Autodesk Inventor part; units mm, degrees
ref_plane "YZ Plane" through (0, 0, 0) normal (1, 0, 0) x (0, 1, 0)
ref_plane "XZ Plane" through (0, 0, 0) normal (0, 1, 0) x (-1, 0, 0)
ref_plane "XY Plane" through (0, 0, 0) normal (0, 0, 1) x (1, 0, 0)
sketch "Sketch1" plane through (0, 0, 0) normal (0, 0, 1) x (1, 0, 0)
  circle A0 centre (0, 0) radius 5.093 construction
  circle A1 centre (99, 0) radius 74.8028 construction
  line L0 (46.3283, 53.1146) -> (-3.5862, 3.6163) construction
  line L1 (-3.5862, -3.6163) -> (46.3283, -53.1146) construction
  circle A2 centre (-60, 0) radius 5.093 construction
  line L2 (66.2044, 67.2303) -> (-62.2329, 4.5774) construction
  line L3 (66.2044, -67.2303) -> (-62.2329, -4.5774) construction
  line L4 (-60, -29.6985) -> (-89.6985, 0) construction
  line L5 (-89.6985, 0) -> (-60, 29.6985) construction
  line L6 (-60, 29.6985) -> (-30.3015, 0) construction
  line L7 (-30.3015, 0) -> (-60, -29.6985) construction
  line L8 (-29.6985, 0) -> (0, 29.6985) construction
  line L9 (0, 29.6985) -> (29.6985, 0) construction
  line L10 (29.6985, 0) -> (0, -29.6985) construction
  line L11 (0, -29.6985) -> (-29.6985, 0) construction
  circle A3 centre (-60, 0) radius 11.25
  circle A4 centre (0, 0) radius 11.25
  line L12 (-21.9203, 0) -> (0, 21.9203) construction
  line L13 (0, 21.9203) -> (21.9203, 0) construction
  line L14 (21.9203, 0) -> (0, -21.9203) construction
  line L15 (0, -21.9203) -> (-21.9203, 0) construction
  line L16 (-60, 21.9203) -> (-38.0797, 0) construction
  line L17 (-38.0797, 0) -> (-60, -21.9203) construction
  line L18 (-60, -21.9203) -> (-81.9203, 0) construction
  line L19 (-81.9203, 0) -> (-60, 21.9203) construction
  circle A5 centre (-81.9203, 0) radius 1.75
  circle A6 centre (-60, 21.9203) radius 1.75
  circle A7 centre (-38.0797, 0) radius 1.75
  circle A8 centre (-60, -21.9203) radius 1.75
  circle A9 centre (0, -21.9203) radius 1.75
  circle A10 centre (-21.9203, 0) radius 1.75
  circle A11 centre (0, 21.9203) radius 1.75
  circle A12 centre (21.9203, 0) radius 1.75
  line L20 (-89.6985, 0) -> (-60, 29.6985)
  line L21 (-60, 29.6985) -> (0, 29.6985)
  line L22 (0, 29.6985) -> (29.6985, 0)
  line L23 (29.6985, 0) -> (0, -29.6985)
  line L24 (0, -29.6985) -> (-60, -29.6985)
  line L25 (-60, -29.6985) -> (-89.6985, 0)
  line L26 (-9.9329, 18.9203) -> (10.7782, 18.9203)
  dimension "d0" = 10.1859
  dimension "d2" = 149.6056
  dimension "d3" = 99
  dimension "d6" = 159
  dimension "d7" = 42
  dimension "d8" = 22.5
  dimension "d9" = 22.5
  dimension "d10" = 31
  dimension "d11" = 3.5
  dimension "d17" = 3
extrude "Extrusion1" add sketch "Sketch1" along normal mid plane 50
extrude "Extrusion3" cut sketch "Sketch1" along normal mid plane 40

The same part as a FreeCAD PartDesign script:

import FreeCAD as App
import Part
import Sketcher

V = App.Vector
Q = App.Units.Quantity


def add_polygon(sketch, points):
    """Adds a closed chain of lines whose ends are joined by coincident constraints."""
    first, n = sketch.GeometryCount, len(points)
    for a, b in zip(points, points[1:] + points[:1]):
        sketch.addGeometry(Part.LineSegment(App.Vector(*a, 0), App.Vector(*b, 0)), False)
    for i in range(n):
        sketch.addConstraint(Sketcher.Constraint("Coincident", first + i, 2, first + (i + 1) % n, 1))

doc = App.newDocument("Part")
params = doc.addObject("Spreadsheet::Sheet", "Params")
for row, (alias, value) in enumerate([
    ("sketch1_diameter", "3.5 mm"),
    ("sketch1_diameter2", "22.5 mm"),
    ("sketch1_length", "42 mm"),
    ("sketch1_width", "60 mm"),
    ("pad1_length", "50 mm"),
    ("sketch2_diameter", "3.5 mm"),
    ("sketch2_diameter2", "22.5 mm"),
    ("sketch2_length", "42 mm"),
    ("sketch2_width", "60 mm"),
    ("pocket1_length", "40 mm"),
], start=1):
    params.set(f"A{row}", alias)
    params.set(f"B{row}", "=" + value)
    params.setAlias(f"B{row}", alias)

body = doc.addObject("PartDesign::Body", "Body")
body.AllowCompound = True

# Sketch on XY plane
sketch1 = doc.addObject("Sketcher::SketchObject", "Sketch")
body.addObject(sketch1)
sketch1.AttachmentSupport = (doc.XY_Plane, [""])
sketch1.MapMode = "FlatFace"
add_polygon(sketch1, [(-60, 29.7), (-89.7, 0), (-60, -29.7), (0, -29.7), (29.7, 0), (0, 29.7)])  # lines 0-5
sketch1.addGeometry(Part.Circle(V(-60, -21.9, 0), V(0, 0, 1), 1.8), False)  # 6
sketch1.addGeometry(Part.Circle(V(0, -21.9, 0), V(0, 0, 1), 1.8), False)  # 7
sketch1.addGeometry(Part.Circle(V(-81.9, 0, 0), V(0, 0, 1), 1.8), False)  # 8
sketch1.addGeometry(Part.Circle(V(-60, 0, 0), V(0, 0, 1), 11.2), False)  # 9
sketch1.addGeometry(Part.Circle(V(-38.1, 0, 0), V(0, 0, 1), 1.8), False)  # 10
sketch1.addGeometry(Part.Circle(V(-60, 21.9, 0), V(0, 0, 1), 1.8), False)  # 11
sketch1.addGeometry(Part.Circle(V(-21.9, 0, 0), V(0, 0, 1), 1.8), False)  # 12
sketch1.addGeometry(Part.Circle(V(0, 0, 0), V(0, 0, 1), 11.2), False)  # 13
sketch1.addGeometry(Part.Circle(V(21.9, 0, 0), V(0, 0, 1), 1.8), False)  # 14
sketch1.addGeometry(Part.Circle(V(0, 21.9, 0), V(0, 0, 1), 1.8), False)  # 15
sketch1.addConstraint(Sketcher.Constraint("Horizontal", 2))
sketch1.addConstraint(Sketcher.Constraint("Horizontal", 5))
sketch1.addConstraint(Sketcher.Constraint("Coincident", 13, 3, -1, 1))
sketch1.addConstraint(Sketcher.Constraint("Equal", 6, 7))
sketch1.addConstraint(Sketcher.Constraint("Equal", 7, 8))
sketch1.addConstraint(Sketcher.Constraint("Equal", 8, 10))
sketch1.addConstraint(Sketcher.Constraint("Equal", 10, 11))
sketch1.addConstraint(Sketcher.Constraint("Equal", 11, 12))
sketch1.addConstraint(Sketcher.Constraint("Equal", 9, 13))
sketch1.addConstraint(Sketcher.Constraint("Equal", 12, 14))
sketch1.addConstraint(Sketcher.Constraint("Equal", 14, 15))
sketch1.addConstraint(Sketcher.Constraint("Symmetric", 12, 3, 14, 3, -1, 1))
sketch1.addConstraint(Sketcher.Constraint("Symmetric", 7, 3, 15, 3, -1, 1))
sketch1.addConstraint(Sketcher.Constraint("Symmetric", 2, 2, 4, 2, -1, 1))
sketch1.addConstraint(Sketcher.Constraint("Symmetric", 6, 3, 11, 3, -1))
sketch1.addConstraint(Sketcher.Constraint("PointOnObject", 7, 3, -2))
sketch1.addConstraint(Sketcher.Constraint("PointOnObject", 8, 3, -1))
sketch1.addConstraint(Sketcher.Constraint("PointOnObject", 9, 3, -1))
sketch1.addConstraint(Sketcher.Constraint("PointOnObject", 10, 3, -1))
sketch1.addConstraint(Sketcher.Constraint("PointOnObject", 12, 3, -1))
sketch1.addConstraint(Sketcher.Constraint("PointOnObject", 0, 2, -1))
sketch1.addConstraint(Sketcher.Constraint("PointOnObject", 2, 2, -2))
sketch1.addConstraint(Sketcher.Constraint("PointOnObject", 3, 2, -1))
sketch1.addConstraint(Sketcher.Constraint("Perpendicular", 0, 1))
sketch1.addConstraint(Sketcher.Constraint("Perpendicular", 1, 3))
sketch1.addConstraint(Sketcher.Constraint("Perpendicular", 3, 4))
sketch1.addConstraint(Sketcher.Constraint("Horizontal", 6, 3, 7, 3))
sketch1.addConstraint(Sketcher.Constraint("Vertical", 6, 3, 9, 3))
sketch1.addConstraint(Sketcher.Constraint("Vertical", 11, 3, 1, 2))
sketch1.addConstraint(Sketcher.Constraint("Diameter", 6, Q("3.5 mm")))
sketch1.addConstraint(Sketcher.Constraint("Diameter", 9, Q("22.5 mm")))
sketch1.addConstraint(Sketcher.Constraint("Distance", 0, Q("42 mm")))
sketch1.addConstraint(Sketcher.Constraint("DistanceX", 2, 1, 2, 2, Q("60 mm")))
sketch1.addConstraint(Sketcher.Constraint("DistanceX", 10, 3, 14, 3, Q("60 mm")))
sketch1.addConstraint(Sketcher.Constraint("DistanceY", 6, 3, -1, 1, Q("21.9203 mm")))
sketch1.addConstraint(Sketcher.Constraint("DistanceX", 8, 3, -1, 1, Q("81.9203 mm")))
sketch1.addConstraint(Sketcher.Constraint("DistanceX", 10, 3, -1, 1, Q("38.0797 mm")))
sketch1.setExpression("Constraints[35]", "Params.sketch1_diameter")
sketch1.setExpression("Constraints[36]", "Params.sketch1_diameter2")
sketch1.setExpression("Constraints[37]", "Params.sketch1_length")
sketch1.setExpression("Constraints[38]", "Params.sketch1_width")
pad1 = doc.addObject("PartDesign::Pad", "Pad")
body.addObject(pad1)
pad1.Profile = sketch1
pad1.setExpression("Length", "Params.pad1_length")
pad1.Midplane = True

# Sketch on XY plane
sketch2 = doc.addObject("Sketcher::SketchObject", "Sketch001")
body.addObject(sketch2)
sketch2.AttachmentSupport = (doc.XY_Plane, [""])
sketch2.MapMode = "FlatFace"
add_polygon(sketch2, [(-60, 29.7), (-89.7, 0), (-60, -29.7), (0, -29.7), (29.7, 0), (0, 29.7)])  # lines 0-5
sketch2.addGeometry(Part.Circle(V(-60, -21.9, 0), V(0, 0, 1), 1.8), False)  # 6
sketch2.addGeometry(Part.Circle(V(0, -21.9, 0), V(0, 0, 1), 1.8), False)  # 7
sketch2.addGeometry(Part.Circle(V(-81.9, 0, 0), V(0, 0, 1), 1.8), False)  # 8
sketch2.addGeometry(Part.Circle(V(-60, 0, 0), V(0, 0, 1), 11.2), False)  # 9
sketch2.addGeometry(Part.Circle(V(-38.1, 0, 0), V(0, 0, 1), 1.8), False)  # 10
sketch2.addGeometry(Part.Circle(V(-60, 21.9, 0), V(0, 0, 1), 1.8), False)  # 11
sketch2.addGeometry(Part.Circle(V(-21.9, 0, 0), V(0, 0, 1), 1.8), False)  # 12
sketch2.addGeometry(Part.Circle(V(0, 0, 0), V(0, 0, 1), 11.2), False)  # 13
sketch2.addGeometry(Part.Circle(V(21.9, 0, 0), V(0, 0, 1), 1.8), False)  # 14
sketch2.addGeometry(Part.Circle(V(0, 21.9, 0), V(0, 0, 1), 1.8), False)  # 15
sketch2.addConstraint(Sketcher.Constraint("Horizontal", 2))
sketch2.addConstraint(Sketcher.Constraint("Horizontal", 5))
sketch2.addConstraint(Sketcher.Constraint("Coincident", 13, 3, -1, 1))
sketch2.addConstraint(Sketcher.Constraint("Equal", 6, 7))
sketch2.addConstraint(Sketcher.Constraint("Equal", 7, 8))
sketch2.addConstraint(Sketcher.Constraint("Equal", 8, 10))
sketch2.addConstraint(Sketcher.Constraint("Equal", 10, 11))
sketch2.addConstraint(Sketcher.Constraint("Equal", 11, 12))
sketch2.addConstraint(Sketcher.Constraint("Equal", 9, 13))
sketch2.addConstraint(Sketcher.Constraint("Equal", 12, 14))
sketch2.addConstraint(Sketcher.Constraint("Equal", 14, 15))
sketch2.addConstraint(Sketcher.Constraint("Symmetric", 12, 3, 14, 3, -1, 1))
sketch2.addConstraint(Sketcher.Constraint("Symmetric", 7, 3, 15, 3, -1, 1))
sketch2.addConstraint(Sketcher.Constraint("Symmetric", 2, 2, 4, 2, -1, 1))
sketch2.addConstraint(Sketcher.Constraint("Symmetric", 6, 3, 11, 3, -1))
sketch2.addConstraint(Sketcher.Constraint("PointOnObject", 7, 3, -2))
sketch2.addConstraint(Sketcher.Constraint("PointOnObject", 8, 3, -1))
sketch2.addConstraint(Sketcher.Constraint("PointOnObject", 9, 3, -1))
sketch2.addConstraint(Sketcher.Constraint("PointOnObject", 10, 3, -1))
sketch2.addConstraint(Sketcher.Constraint("PointOnObject", 12, 3, -1))
sketch2.addConstraint(Sketcher.Constraint("PointOnObject", 0, 2, -1))
sketch2.addConstraint(Sketcher.Constraint("PointOnObject", 2, 2, -2))
sketch2.addConstraint(Sketcher.Constraint("PointOnObject", 3, 2, -1))
sketch2.addConstraint(Sketcher.Constraint("Perpendicular", 0, 1))
sketch2.addConstraint(Sketcher.Constraint("Perpendicular", 1, 3))
sketch2.addConstraint(Sketcher.Constraint("Perpendicular", 3, 4))
sketch2.addConstraint(Sketcher.Constraint("Horizontal", 6, 3, 7, 3))
sketch2.addConstraint(Sketcher.Constraint("Vertical", 6, 3, 9, 3))
sketch2.addConstraint(Sketcher.Constraint("Vertical", 11, 3, 1, 2))
sketch2.addConstraint(Sketcher.Constraint("Diameter", 6, Q("3.5 mm")))
sketch2.addConstraint(Sketcher.Constraint("Diameter", 9, Q("22.5 mm")))
sketch2.addConstraint(Sketcher.Constraint("Distance", 0, Q("42 mm")))
sketch2.addConstraint(Sketcher.Constraint("DistanceX", 2, 1, 2, 2, Q("60 mm")))
sketch2.addConstraint(Sketcher.Constraint("DistanceX", 10, 3, 14, 3, Q("60 mm")))
sketch2.addConstraint(Sketcher.Constraint("DistanceY", 6, 3, -1, 1, Q("21.9203 mm")))
sketch2.addConstraint(Sketcher.Constraint("DistanceX", 8, 3, -1, 1, Q("81.9203 mm")))
sketch2.addConstraint(Sketcher.Constraint("DistanceX", 10, 3, -1, 1, Q("38.0797 mm")))
sketch2.setExpression("Constraints[35]", "Params.sketch2_diameter")
sketch2.setExpression("Constraints[36]", "Params.sketch2_diameter2")
sketch2.setExpression("Constraints[37]", "Params.sketch2_length")
sketch2.setExpression("Constraints[38]", "Params.sketch2_width")
pocket1 = doc.addObject("PartDesign::Pocket", "Pocket")
body.addObject(pocket1)
pocket1.Profile = sketch2
pocket1.setExpression("Length", "Params.pocket1_length")
pocket1.Midplane = True

doc.recompute()
